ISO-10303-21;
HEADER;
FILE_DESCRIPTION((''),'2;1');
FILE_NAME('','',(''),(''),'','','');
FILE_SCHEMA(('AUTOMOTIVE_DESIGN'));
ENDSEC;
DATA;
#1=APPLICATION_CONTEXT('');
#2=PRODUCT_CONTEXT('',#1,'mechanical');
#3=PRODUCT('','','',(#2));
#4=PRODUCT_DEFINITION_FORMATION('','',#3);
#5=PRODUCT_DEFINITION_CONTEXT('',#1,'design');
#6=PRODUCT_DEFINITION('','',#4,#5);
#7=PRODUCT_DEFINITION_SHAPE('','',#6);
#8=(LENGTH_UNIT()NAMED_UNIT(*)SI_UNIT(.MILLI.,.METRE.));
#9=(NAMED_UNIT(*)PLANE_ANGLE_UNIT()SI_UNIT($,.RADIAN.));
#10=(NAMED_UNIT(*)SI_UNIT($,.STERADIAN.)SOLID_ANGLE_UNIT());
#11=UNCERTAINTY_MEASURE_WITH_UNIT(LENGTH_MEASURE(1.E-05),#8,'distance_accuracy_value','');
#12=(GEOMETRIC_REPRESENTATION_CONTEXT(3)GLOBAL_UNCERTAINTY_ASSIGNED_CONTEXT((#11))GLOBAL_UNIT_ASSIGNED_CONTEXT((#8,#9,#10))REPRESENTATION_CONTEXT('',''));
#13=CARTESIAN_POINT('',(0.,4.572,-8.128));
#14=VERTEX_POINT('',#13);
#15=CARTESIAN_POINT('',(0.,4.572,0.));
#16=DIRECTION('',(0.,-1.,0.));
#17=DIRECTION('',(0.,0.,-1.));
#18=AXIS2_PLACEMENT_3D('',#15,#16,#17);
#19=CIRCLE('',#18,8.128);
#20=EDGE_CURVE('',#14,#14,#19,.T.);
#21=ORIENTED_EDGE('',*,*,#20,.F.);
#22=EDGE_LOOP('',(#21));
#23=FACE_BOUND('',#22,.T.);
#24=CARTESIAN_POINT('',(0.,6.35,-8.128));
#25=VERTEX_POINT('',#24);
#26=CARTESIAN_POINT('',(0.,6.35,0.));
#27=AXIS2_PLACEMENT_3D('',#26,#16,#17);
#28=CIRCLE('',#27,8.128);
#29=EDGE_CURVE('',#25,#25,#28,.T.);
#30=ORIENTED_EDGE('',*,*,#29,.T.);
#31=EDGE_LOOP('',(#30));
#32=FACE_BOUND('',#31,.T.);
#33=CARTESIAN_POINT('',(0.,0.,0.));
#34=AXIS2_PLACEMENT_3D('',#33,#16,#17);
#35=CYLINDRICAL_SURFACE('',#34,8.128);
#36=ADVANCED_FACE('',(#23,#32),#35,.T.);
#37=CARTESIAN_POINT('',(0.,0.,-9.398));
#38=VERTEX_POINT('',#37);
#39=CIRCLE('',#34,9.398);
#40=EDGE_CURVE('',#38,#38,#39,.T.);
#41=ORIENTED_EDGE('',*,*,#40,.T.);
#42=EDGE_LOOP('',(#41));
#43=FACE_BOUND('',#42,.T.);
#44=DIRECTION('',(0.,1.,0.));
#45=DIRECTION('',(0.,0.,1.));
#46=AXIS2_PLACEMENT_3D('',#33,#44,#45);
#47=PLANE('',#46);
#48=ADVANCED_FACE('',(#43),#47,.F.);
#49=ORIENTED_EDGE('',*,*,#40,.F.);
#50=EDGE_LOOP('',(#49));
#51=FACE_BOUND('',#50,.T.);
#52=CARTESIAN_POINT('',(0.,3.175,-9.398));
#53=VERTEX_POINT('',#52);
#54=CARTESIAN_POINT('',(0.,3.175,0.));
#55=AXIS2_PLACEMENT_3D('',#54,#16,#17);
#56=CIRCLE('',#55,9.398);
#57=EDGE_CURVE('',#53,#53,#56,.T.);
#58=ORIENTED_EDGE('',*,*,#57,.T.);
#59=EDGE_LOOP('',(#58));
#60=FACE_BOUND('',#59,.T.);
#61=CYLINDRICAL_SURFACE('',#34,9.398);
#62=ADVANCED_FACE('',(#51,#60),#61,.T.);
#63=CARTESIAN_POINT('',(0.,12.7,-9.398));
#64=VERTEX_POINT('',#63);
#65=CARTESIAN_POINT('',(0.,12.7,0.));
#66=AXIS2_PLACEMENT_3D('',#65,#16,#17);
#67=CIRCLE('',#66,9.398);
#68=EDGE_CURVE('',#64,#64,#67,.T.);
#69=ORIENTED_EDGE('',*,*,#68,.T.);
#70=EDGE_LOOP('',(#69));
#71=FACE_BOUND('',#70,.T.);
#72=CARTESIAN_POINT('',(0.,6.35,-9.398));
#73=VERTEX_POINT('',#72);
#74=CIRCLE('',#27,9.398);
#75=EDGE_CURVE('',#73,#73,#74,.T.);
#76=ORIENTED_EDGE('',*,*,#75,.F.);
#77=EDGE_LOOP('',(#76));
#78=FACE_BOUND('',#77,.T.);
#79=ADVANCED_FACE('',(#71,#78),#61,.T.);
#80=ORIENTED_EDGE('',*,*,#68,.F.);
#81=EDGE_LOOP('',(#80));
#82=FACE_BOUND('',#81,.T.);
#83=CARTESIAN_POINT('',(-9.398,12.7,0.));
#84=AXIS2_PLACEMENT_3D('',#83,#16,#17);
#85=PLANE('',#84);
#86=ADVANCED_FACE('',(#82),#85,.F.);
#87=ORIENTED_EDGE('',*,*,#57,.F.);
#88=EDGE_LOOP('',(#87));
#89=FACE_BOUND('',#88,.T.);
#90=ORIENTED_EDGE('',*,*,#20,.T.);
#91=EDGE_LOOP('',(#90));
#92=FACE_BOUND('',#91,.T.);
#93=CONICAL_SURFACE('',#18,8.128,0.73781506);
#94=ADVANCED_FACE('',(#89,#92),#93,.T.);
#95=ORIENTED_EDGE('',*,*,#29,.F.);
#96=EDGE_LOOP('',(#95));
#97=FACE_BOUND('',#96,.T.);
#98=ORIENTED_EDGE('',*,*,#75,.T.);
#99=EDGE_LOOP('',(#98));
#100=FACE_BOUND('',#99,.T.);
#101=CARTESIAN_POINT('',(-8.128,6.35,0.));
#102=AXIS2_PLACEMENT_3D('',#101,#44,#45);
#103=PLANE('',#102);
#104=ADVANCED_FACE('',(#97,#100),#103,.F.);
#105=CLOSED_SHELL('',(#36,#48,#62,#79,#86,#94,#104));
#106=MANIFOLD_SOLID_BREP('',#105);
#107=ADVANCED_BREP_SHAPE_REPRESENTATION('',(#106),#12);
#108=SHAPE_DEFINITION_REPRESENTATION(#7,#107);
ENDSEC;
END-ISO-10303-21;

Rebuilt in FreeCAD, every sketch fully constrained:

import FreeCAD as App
import Part
import Sketcher

V = App.Vector
Q = App.Units.Quantity


def add_polygon(sketch, points):
    """Adds a closed chain of lines whose ends are joined by coincident constraints."""
    first, n = sketch.GeometryCount, len(points)
    for a, b in zip(points, points[1:] + points[:1]):
        sketch.addGeometry(Part.LineSegment(App.Vector(*a, 0), App.Vector(*b, 0)), False)
    for i in range(n):
        sketch.addConstraint(Sketcher.Constraint("Coincident", first + i, 2, first + (i + 1) % n, 1))

doc = App.newDocument("Part")
body = doc.addObject("PartDesign::Body", "Body")

sketch1 = body.newObject("Sketcher::SketchObject", "Sketch")
sketch1.AttachmentSupport = (doc.getObject("XY_Plane"), [""])
sketch1.MapMode = "FlatFace"
add_polygon(sketch1, [(-9.4, 0), (0, 0), (0, 12.7), (-9.4, 12.7), (-9.4, 6.3), (-8.1, 6.3), (-8.1, 4.6), (-9.4, 3.2)])
sketch1.addConstraint([
    Sketcher.Constraint("Horizontal", 0),
    Sketcher.Constraint("Vertical", 1),
    Sketcher.Constraint("Horizontal", 2),
    Sketcher.Constraint("Vertical", 3),
    Sketcher.Constraint("Horizontal", 4),
    Sketcher.Constraint("Vertical", 5),
    Sketcher.Constraint("Vertical", 7),
    Sketcher.Constraint("Coincident", 0, 2, -1, 1),
    Sketcher.Constraint("Vertical", 3, 2, 6, 2),
    Sketcher.Constraint("DistanceY", 1, 1, 1, 2, Q("0.5 in")),
    Sketcher.Constraint("DistanceX", 0, 1, 0, 2, Q("0.37 in")),
    Sketcher.Constraint("DistanceX", 4, 1, 4, 2, Q("0.05 in")),
    Sketcher.Constraint("DistanceY", 3, 2, 3, 1, Q("0.25 in")),
    Sketcher.Constraint("DistanceY", 5, 2, 5, 1, Q("0.07 in")),
    Sketcher.Constraint("DistanceY", 7, 2, 7, 1, Q("0.125 in")),
])
revolution = body.newObject("PartDesign::Revolution", "Revolution")
revolution.Profile = sketch1
revolution.ReferenceAxis = (sketch1, ["V_Axis"])
revolution.Angle = 360

doc.recompute()
